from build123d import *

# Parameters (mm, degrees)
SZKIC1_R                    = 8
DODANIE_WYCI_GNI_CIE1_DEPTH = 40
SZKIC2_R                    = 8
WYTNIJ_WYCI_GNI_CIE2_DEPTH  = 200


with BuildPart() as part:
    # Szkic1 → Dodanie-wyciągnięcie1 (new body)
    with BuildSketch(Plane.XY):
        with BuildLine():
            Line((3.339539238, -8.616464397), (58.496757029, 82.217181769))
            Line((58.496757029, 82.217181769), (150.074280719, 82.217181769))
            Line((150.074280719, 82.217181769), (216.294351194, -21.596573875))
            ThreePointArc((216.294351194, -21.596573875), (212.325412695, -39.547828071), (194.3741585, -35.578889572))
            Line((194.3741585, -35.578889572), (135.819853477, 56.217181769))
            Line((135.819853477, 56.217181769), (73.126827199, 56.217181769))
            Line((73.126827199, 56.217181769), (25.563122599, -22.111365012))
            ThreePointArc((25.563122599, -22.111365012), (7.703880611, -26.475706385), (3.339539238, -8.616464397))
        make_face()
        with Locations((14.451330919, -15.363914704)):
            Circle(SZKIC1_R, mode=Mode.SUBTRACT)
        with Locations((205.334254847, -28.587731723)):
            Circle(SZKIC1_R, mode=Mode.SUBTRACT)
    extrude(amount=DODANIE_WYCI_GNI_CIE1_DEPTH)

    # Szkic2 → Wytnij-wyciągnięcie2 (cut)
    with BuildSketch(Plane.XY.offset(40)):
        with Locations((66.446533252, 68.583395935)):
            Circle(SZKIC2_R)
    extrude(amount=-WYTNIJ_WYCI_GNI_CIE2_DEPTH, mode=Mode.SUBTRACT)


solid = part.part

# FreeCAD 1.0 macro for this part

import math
import FreeCAD as App
import Part
import Sketcher

doc = App.newDocument("Part")
body = doc.addObject("PartDesign::Body", "Body")

sketch1 = body.newObject("Sketcher::SketchObject", "Sketch")
sketch1.AttachmentSupport = (doc.getObject("XY_Plane"), [""])
sketch1.MapMode = "FlatFace"
sketch1.addGeometry([
    Part.LineSegment(App.Vector(58, 82, 0), App.Vector(3, -9, 0)),
    Part.ArcOfCircle(Part.Circle(App.Vector(14, -15, 0), App.Vector(0, 0, 1), 13), math.radians(149), math.radians(329)),
    Part.LineSegment(App.Vector(26, -22, 0), App.Vector(73, 56, 0)),
    Part.LineSegment(App.Vector(73, 56, 0), App.Vector(136, 56, 0)),
    Part.LineSegment(App.Vector(136, 56, 0), App.Vector(194, -36, 0)),
    Part.ArcOfCircle(Part.Circle(App.Vector(205, -29, 0), App.Vector(0, 0, 1), 13), math.radians(-147), math.radians(33)),
    Part.LineSegment(App.Vector(216, -22, 0), App.Vector(150, 82, 0)),
    Part.LineSegment(App.Vector(150, 82, 0), App.Vector(58, 82, 0)),
    Part.Circle(App.Vector(205, -29, 0), App.Vector(0, 0, 1), 8),
    Part.Circle(App.Vector(14, -15, 0), App.Vector(0, 0, 1), 8),
], False)
sketch1.addConstraint([
    Sketcher.Constraint("Tangent", 0, 2, 1, 1),
    Sketcher.Constraint("Tangent", 1, 2, 2, 1),
    Sketcher.Constraint("Coincident", 2, 2, 3, 1),
    Sketcher.Constraint("Coincident", 3, 2, 4, 1),
    Sketcher.Constraint("Tangent", 4, 2, 5, 1),
    Sketcher.Constraint("Tangent", 5, 2, 6, 1),
    Sketcher.Constraint("Coincident", 6, 2, 7, 1),
    Sketcher.Constraint("Coincident", 7, 2, 0, 1),
    Sketcher.Constraint("Horizontal", 3),
    Sketcher.Constraint("Horizontal", 7),
    Sketcher.Constraint("Coincident", 8, 3, 5, 3),
    Sketcher.Constraint("Coincident", 9, 3, 1, 3),
    Sketcher.Constraint("Equal", 1, 5),
    Sketcher.Constraint("Equal", 8, 9),
    Sketcher.Constraint("Parallel", 0, 2),
    Sketcher.Constraint("Parallel", 4, 6),
    Sketcher.Constraint("Diameter", 8, 16.0),
    Sketcher.Constraint("Radius", 1, 13.0),
    Sketcher.Constraint("DistanceY", 3, 2, 6, 2, 26.0),
    Sketcher.Constraint("DistanceY", 1, 2, 0, 2, 13.494901),
    Sketcher.Constraint("DistanceX", 3, 2, 8, 3, 69.514401),
    Sketcher.Constraint("Distance", 6, 123.135671),
    Sketcher.Constraint("DistanceX", 3, 1, 3, 2, 62.693026),
    Sketcher.Constraint("DistanceX", -1, 1, 1, 3, 14.451331),
    Sketcher.Constraint("DistanceY", 5, 3, -1, 1, 28.587732),
    Sketcher.Constraint("DistanceX", -1, 1, 4, 2, 194.374158),
])
pad1 = body.newObject("PartDesign::Pad", "Pad")
pad1.Profile = sketch1
pad1.Length = 40

sketch2 = body.newObject("Sketcher::SketchObject", "Sketch001")
sketch2.AttachmentSupport = (doc.getObject("XY_Plane"), [""])
sketch2.MapMode = "FlatFace"
sketch2.AttachmentOffset = App.Placement(App.Vector(0, 0, 40), App.Rotation())
sketch2.addGeometry(Part.Circle(App.Vector(66, 69, 0), App.Vector(0, 0, 1), 8), False)
sketch2.addConstraint([
    Sketcher.Constraint("Diameter", 0, 16.0),
    Sketcher.Constraint("DistanceX", -1, 1, 0, 3, 66.446533),
    Sketcher.Constraint("DistanceY", -1, 1, 0, 3, 68.583396),
])
pocket1 = body.newObject("PartDesign::Pocket", "Pocket")
pocket1.Profile = sketch2
pocket1.Length = 200

doc.recompute()
